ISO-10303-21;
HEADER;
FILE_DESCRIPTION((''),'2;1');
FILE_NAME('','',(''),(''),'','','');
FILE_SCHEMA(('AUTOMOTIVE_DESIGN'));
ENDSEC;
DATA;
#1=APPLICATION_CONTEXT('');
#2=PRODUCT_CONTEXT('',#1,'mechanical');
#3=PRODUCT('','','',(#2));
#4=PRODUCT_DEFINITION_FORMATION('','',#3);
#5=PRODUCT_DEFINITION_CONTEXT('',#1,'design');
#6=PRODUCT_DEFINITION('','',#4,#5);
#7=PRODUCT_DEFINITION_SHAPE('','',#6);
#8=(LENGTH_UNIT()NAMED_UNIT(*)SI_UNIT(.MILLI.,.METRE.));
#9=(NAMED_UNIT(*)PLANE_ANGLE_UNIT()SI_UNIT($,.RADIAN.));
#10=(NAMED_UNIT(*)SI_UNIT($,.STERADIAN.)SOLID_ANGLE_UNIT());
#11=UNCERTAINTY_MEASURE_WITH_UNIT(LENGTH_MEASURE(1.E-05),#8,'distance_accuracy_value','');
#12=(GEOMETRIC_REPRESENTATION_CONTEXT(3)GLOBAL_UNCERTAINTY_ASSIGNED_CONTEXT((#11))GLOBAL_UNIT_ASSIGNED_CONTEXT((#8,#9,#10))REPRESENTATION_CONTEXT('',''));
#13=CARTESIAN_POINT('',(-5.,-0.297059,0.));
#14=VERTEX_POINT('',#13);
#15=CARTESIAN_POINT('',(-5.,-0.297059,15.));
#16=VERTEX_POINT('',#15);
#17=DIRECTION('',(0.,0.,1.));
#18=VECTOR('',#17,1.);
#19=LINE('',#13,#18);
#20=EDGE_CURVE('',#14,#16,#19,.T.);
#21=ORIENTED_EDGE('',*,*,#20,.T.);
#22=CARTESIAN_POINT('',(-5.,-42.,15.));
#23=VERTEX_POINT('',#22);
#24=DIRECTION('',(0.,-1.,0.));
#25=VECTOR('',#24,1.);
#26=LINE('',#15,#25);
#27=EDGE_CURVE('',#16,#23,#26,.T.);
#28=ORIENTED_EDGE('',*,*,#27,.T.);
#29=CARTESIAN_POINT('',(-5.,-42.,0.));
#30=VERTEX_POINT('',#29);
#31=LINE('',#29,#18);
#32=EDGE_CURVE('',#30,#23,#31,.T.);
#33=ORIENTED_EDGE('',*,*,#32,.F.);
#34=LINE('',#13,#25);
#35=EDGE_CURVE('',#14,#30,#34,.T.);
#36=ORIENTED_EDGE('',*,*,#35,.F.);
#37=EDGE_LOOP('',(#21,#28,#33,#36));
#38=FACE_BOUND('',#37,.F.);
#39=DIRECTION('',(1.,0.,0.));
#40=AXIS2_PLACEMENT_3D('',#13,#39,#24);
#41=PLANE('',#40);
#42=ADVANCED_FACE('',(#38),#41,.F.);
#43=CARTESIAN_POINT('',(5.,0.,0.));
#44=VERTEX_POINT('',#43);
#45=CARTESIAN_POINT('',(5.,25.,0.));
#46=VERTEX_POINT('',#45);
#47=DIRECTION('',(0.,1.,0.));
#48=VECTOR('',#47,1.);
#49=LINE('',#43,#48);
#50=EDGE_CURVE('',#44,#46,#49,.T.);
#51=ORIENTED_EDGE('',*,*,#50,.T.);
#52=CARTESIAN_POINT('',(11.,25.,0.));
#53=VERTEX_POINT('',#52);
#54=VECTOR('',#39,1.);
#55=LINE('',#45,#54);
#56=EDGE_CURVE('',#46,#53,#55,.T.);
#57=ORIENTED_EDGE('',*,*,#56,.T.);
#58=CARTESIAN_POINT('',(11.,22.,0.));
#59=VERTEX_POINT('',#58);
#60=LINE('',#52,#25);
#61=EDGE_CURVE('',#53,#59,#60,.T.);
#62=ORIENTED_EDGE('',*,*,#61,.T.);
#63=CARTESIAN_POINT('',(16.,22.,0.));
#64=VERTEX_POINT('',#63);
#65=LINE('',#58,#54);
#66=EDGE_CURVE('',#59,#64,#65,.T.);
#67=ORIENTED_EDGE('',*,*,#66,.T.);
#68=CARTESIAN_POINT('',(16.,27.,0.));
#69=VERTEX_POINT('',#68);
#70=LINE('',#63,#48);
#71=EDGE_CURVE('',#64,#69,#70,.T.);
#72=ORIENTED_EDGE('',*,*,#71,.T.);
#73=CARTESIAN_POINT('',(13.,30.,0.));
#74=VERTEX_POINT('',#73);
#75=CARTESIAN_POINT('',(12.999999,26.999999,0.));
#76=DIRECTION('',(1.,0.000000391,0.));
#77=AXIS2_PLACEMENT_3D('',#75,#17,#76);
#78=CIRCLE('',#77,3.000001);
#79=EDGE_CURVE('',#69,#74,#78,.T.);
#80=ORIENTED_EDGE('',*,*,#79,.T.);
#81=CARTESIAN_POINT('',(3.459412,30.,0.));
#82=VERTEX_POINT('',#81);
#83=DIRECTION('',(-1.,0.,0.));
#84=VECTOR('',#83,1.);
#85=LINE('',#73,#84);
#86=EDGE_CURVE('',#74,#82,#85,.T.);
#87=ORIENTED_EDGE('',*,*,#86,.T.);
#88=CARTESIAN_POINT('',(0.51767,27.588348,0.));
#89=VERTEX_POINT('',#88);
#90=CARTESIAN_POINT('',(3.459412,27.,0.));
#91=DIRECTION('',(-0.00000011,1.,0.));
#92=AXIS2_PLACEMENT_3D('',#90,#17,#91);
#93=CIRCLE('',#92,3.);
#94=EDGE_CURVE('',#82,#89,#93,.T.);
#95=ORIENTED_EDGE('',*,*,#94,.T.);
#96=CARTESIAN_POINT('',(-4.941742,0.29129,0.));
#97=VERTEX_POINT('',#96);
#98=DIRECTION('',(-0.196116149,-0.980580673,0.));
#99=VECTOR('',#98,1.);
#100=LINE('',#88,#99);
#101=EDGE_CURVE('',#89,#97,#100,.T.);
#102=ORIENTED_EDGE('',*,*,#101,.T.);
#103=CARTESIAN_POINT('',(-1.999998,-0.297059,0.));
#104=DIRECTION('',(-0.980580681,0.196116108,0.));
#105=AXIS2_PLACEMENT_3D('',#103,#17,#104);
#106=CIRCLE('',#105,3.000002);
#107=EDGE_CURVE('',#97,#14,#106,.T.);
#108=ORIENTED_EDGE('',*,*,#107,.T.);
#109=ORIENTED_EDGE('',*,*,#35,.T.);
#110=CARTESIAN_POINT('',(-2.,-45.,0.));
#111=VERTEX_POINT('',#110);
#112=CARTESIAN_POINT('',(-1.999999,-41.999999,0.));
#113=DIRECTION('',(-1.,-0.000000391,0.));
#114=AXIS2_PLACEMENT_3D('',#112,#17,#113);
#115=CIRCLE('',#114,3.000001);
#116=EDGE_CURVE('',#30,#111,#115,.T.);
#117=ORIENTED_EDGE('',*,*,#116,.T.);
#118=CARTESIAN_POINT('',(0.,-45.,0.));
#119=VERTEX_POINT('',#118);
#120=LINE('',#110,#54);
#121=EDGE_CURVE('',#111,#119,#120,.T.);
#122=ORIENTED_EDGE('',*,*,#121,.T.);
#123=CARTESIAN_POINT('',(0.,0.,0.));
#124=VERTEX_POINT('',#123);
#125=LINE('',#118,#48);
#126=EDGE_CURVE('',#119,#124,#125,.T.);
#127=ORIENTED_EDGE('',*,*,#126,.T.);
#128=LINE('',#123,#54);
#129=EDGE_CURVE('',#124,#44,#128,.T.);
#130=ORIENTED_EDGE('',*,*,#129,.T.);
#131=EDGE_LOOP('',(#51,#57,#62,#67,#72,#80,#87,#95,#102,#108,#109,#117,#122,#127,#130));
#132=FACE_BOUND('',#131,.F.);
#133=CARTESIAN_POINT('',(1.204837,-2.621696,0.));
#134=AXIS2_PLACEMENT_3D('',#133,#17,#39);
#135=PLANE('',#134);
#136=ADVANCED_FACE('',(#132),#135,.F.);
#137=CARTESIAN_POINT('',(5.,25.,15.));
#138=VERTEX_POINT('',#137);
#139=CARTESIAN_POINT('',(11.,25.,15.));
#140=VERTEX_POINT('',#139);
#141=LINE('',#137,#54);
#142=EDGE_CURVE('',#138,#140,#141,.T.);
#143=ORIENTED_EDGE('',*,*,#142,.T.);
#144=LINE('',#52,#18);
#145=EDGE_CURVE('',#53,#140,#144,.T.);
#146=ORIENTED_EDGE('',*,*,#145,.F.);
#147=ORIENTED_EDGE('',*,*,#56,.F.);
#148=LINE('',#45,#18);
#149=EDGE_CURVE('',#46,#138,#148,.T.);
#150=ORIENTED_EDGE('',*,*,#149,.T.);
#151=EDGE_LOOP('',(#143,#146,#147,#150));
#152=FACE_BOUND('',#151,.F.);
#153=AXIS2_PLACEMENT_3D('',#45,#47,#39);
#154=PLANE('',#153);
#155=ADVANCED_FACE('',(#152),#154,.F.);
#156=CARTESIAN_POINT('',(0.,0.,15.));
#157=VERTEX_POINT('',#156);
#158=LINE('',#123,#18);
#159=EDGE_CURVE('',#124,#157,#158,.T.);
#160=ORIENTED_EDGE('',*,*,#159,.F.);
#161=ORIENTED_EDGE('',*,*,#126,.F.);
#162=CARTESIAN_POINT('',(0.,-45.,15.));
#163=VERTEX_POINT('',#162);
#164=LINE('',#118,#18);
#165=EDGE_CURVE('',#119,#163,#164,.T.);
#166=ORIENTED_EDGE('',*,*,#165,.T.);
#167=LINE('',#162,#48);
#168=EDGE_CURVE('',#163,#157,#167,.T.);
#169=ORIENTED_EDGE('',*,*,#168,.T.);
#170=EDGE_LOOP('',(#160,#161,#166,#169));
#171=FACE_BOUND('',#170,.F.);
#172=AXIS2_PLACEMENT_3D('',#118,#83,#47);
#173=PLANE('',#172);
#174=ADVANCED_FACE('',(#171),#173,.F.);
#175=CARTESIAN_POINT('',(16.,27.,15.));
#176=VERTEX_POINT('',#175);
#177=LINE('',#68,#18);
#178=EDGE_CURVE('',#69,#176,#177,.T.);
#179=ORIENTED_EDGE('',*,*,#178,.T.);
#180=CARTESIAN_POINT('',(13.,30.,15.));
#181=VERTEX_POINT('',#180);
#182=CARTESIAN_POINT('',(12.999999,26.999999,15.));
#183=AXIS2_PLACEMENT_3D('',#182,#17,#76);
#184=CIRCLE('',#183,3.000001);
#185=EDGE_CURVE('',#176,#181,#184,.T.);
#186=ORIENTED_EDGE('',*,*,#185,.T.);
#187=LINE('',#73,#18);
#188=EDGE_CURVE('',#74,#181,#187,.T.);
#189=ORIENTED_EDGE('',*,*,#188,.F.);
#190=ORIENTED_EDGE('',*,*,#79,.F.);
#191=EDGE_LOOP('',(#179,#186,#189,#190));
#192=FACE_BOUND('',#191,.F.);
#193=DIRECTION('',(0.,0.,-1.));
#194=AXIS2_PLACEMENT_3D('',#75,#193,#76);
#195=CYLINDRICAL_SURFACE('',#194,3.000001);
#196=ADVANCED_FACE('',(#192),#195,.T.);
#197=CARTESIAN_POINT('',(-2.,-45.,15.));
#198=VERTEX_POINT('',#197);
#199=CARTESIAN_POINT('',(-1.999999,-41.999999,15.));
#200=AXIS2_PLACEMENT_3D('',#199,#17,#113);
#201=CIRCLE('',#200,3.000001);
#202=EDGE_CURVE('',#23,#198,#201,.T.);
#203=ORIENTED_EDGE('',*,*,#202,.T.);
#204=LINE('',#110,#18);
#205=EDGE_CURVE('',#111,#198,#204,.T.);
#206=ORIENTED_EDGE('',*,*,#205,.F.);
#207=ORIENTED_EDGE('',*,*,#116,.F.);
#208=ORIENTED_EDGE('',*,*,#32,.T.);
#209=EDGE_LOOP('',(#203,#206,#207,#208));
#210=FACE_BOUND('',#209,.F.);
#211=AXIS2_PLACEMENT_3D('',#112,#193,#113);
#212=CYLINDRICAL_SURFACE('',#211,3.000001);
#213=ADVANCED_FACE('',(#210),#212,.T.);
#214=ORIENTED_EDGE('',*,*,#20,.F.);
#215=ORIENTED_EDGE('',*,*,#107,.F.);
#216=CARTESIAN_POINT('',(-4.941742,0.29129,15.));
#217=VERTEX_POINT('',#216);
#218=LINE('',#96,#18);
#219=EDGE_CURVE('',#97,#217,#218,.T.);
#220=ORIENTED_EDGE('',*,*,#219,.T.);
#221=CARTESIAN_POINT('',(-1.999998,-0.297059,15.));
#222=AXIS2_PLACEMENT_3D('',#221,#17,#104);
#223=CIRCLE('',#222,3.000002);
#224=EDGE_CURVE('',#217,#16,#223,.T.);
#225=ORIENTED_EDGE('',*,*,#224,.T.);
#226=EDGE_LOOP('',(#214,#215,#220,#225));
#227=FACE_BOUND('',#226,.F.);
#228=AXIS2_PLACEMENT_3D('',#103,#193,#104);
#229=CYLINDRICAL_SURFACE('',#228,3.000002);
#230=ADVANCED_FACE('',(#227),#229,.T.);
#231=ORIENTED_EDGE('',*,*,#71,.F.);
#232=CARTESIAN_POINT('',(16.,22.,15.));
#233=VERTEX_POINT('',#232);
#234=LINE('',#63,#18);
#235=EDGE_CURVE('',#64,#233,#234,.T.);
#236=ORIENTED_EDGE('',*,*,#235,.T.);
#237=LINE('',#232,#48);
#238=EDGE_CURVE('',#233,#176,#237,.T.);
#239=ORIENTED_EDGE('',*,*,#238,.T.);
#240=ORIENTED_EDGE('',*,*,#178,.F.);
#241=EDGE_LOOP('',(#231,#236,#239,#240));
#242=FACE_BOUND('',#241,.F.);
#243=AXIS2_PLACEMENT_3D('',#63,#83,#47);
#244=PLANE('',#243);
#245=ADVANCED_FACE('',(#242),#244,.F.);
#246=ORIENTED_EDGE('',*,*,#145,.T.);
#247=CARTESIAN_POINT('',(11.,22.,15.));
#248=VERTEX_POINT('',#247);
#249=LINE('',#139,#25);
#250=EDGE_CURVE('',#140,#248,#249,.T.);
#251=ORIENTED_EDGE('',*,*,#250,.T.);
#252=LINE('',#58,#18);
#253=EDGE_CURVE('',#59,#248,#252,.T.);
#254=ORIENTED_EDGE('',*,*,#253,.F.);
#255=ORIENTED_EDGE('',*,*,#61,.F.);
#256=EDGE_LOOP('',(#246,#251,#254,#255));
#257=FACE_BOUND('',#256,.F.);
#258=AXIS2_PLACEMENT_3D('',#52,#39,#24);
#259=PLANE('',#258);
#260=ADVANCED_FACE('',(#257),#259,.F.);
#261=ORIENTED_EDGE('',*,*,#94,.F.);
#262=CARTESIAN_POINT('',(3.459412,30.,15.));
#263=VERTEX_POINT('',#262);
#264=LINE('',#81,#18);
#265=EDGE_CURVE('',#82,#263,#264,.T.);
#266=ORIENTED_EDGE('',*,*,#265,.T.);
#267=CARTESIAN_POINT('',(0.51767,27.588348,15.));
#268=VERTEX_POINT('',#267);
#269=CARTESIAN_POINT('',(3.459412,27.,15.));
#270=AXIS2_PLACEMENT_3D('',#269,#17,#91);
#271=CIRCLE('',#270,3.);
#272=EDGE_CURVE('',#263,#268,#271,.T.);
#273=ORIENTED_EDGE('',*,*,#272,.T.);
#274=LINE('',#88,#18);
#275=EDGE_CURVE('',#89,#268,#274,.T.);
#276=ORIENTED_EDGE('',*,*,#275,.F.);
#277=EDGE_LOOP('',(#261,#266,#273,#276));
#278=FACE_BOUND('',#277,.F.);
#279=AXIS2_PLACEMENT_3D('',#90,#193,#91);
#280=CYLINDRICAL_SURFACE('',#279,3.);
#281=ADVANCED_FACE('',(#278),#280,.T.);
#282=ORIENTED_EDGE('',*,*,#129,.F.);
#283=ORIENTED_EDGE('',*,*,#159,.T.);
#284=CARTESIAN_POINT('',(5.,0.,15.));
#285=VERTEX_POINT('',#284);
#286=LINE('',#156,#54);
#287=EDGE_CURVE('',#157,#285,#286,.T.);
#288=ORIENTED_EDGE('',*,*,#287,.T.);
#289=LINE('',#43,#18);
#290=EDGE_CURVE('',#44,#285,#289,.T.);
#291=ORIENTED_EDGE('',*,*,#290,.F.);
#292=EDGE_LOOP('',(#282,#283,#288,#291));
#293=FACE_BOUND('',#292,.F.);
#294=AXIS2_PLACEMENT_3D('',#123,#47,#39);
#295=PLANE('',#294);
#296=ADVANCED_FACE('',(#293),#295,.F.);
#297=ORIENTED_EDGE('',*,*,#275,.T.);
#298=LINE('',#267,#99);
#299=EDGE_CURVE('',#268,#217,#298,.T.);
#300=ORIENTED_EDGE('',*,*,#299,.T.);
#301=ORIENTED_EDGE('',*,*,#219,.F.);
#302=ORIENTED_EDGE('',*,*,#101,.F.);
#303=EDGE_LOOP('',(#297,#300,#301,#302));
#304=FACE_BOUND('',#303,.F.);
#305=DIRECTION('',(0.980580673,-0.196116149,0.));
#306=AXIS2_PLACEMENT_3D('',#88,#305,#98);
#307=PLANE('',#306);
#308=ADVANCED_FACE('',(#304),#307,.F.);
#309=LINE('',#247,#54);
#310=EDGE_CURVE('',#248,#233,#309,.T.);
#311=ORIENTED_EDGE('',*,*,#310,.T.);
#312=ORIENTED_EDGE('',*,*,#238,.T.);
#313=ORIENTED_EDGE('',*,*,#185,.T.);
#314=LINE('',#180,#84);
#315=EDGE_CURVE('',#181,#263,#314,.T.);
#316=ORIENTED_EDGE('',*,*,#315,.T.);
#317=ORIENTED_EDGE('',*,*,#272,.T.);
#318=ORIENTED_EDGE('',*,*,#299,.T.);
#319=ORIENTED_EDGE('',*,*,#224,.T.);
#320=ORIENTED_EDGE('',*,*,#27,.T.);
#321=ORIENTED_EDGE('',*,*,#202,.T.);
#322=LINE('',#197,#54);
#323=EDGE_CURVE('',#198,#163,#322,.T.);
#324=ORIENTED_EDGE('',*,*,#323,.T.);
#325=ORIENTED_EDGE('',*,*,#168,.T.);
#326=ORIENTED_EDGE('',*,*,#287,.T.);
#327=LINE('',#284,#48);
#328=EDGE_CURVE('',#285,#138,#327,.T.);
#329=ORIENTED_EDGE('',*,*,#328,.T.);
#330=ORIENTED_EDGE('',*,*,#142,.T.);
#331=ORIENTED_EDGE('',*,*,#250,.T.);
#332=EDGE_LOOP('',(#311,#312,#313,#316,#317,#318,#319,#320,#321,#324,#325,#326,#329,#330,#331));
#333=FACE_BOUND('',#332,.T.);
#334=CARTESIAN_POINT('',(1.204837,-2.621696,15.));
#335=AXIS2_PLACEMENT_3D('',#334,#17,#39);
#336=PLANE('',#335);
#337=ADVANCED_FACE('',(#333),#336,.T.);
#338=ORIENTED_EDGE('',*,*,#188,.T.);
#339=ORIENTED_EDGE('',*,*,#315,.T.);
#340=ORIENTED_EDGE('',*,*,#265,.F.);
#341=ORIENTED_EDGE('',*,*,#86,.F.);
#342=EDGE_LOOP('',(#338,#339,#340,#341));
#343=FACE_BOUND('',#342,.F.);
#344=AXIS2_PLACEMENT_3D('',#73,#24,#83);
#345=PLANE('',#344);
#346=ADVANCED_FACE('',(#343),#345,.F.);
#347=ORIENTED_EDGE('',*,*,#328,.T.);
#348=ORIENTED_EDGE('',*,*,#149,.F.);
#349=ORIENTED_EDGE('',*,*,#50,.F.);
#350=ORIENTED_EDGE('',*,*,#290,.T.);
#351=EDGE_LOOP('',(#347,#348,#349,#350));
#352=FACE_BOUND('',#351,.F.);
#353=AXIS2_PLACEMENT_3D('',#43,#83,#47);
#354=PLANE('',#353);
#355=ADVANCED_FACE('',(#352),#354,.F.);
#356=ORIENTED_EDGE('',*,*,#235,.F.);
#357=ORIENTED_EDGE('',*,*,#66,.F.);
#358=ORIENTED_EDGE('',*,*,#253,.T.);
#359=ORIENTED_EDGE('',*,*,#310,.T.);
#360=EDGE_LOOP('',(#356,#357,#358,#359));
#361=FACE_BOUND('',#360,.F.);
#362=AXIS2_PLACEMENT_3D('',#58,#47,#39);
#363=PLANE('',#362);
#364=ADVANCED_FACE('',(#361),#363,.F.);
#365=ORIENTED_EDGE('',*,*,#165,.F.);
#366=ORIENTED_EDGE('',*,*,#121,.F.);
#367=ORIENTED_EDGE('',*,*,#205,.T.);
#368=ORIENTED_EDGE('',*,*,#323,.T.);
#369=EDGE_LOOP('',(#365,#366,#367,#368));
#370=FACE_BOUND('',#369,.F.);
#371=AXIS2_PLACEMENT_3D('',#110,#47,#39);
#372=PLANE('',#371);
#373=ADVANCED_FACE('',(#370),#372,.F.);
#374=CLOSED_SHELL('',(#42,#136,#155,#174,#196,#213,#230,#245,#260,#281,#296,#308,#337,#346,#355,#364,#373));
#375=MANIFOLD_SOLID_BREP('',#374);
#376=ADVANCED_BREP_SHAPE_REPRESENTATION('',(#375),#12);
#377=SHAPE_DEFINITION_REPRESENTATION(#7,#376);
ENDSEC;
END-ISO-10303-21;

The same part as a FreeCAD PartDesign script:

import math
import FreeCAD as App
import Part
import Sketcher

V = App.Vector
Q = App.Units.Quantity

doc = App.newDocument("Part")
body = doc.addObject("PartDesign::Body", "Body")

sketch1 = body.newObject("Sketcher::SketchObject", "Sketch")
sketch1.AttachmentSupport = (doc.getObject("XY_Plane"), [""])
sketch1.MapMode = "FlatFace"
sketch1.addGeometry([
    Part.ArcOfCircle(Part.Circle(V(-2, -42, 0), V(0, 0, 1), 3), math.radians(-180), math.radians(-90)),
    Part.LineSegment(V(-2, -45, 0), V(0, -45, 0)),
    Part.LineSegment(V(0, -45, 0), V(0, 0, 0)),
    Part.LineSegment(V(0, 0, 0), V(5, 0, 0)),
    Part.LineSegment(V(5, 0, 0), V(5, 25, 0)),
    Part.LineSegment(V(5, 25, 0), V(11, 25, 0)),
    Part.LineSegment(V(11, 25, 0), V(11, 22, 0)),
    Part.LineSegment(V(11, 22, 0), V(16, 22, 0)),
    Part.LineSegment(V(16, 22, 0), V(16, 27, 0)),
    Part.ArcOfCircle(Part.Circle(V(13, 27, 0), V(0, 0, 1), 3), math.radians(0), math.radians(90)),
    Part.LineSegment(V(13, 30, 0), V(3.5, 30, 0)),
    Part.ArcOfCircle(Part.Circle(V(3.5, 27, 0), V(0, 0, 1), 3), math.radians(90), math.radians(169)),
    Part.LineSegment(V(0.5, 27.6, 0), V(-4.9, 0.3, 0)),
    Part.ArcOfCircle(Part.Circle(V(-2, -0.3, 0), V(0, 0, 1), 3), math.radians(168.69), math.radians(180)),
    Part.LineSegment(V(-5, -0.3, 0), V(-5, -42, 0)),
], False)
sketch1.addConstraint([
    Sketcher.Constraint("Tangent", 0, 2, 1, 1),
    Sketcher.Constraint("Coincident", 1, 2, 2, 1),
    Sketcher.Constraint("Coincident", 2, 2, 3, 1),
    Sketcher.Constraint("Coincident", 3, 2, 4, 1),
    Sketcher.Constraint("Coincident", 4, 2, 5, 1),
    Sketcher.Constraint("Coincident", 5, 2, 6, 1),
    Sketcher.Constraint("Coincident", 6, 2, 7, 1),
    Sketcher.Constraint("Coincident", 7, 2, 8, 1),
    Sketcher.Constraint("Tangent", 8, 2, 9, 1),
    Sketcher.Constraint("Tangent", 9, 2, 10, 1),
    Sketcher.Constraint("Tangent", 10, 2, 11, 1),
    Sketcher.Constraint("Tangent", 11, 2, 12, 1),
    Sketcher.Constraint("Tangent", 12, 2, 13, 1),
    Sketcher.Constraint("Tangent", 13, 2, 14, 1),
    Sketcher.Constraint("Tangent", 14, 2, 0, 1),
    Sketcher.Constraint("Horizontal", 1),
    Sketcher.Constraint("Vertical", 2),
    Sketcher.Constraint("Horizontal", 3),
    Sketcher.Constraint("Vertical", 4),
    Sketcher.Constraint("Horizontal", 5),
    Sketcher.Constraint("Vertical", 6),
    Sketcher.Constraint("Horizontal", 7),
    Sketcher.Constraint("Vertical", 8),
    Sketcher.Constraint("Horizontal", 10),
    Sketcher.Constraint("Vertical", 14),
    Sketcher.Constraint("Coincident", 2, 2, -1, 1),
    Sketcher.Constraint("Equal", 0, 9),
    Sketcher.Constraint("Equal", 9, 11),
    Sketcher.Constraint("Equal", 11, 13),
    Sketcher.Constraint("Equal", 3, 7),
    Sketcher.Constraint("Equal", 7, 8),
    Sketcher.Constraint("Radius", 0, Q("3.000001 mm")),
    Sketcher.Constraint("DistanceX", 1, 1, 1, 2, Q("2 mm")),
    Sketcher.Constraint("DistanceX", 3, 1, 3, 2, Q("5 mm")),
    Sketcher.Constraint("DistanceX", 5, 1, 5, 2, Q("6 mm")),
    Sketcher.Constraint("DistanceY", 2, 1, 2, 2, Q("45 mm")),
    Sketcher.Constraint("DistanceY", 4, 1, 4, 2, Q("25 mm")),
    Sketcher.Constraint("DistanceY", 6, 2, 6, 1, Q("3 mm")),
    Sketcher.Constraint("DistanceY", 14, 2, 14, 1, Q("41.702941 mm")),
    Sketcher.Constraint("DistanceX", 10, 2, 10, 1, Q("9.540588 mm")),
])
pad1 = body.newObject("PartDesign::Pad", "Pad")
pad1.Profile = sketch1
pad1.Length = 15

doc.recompute()
